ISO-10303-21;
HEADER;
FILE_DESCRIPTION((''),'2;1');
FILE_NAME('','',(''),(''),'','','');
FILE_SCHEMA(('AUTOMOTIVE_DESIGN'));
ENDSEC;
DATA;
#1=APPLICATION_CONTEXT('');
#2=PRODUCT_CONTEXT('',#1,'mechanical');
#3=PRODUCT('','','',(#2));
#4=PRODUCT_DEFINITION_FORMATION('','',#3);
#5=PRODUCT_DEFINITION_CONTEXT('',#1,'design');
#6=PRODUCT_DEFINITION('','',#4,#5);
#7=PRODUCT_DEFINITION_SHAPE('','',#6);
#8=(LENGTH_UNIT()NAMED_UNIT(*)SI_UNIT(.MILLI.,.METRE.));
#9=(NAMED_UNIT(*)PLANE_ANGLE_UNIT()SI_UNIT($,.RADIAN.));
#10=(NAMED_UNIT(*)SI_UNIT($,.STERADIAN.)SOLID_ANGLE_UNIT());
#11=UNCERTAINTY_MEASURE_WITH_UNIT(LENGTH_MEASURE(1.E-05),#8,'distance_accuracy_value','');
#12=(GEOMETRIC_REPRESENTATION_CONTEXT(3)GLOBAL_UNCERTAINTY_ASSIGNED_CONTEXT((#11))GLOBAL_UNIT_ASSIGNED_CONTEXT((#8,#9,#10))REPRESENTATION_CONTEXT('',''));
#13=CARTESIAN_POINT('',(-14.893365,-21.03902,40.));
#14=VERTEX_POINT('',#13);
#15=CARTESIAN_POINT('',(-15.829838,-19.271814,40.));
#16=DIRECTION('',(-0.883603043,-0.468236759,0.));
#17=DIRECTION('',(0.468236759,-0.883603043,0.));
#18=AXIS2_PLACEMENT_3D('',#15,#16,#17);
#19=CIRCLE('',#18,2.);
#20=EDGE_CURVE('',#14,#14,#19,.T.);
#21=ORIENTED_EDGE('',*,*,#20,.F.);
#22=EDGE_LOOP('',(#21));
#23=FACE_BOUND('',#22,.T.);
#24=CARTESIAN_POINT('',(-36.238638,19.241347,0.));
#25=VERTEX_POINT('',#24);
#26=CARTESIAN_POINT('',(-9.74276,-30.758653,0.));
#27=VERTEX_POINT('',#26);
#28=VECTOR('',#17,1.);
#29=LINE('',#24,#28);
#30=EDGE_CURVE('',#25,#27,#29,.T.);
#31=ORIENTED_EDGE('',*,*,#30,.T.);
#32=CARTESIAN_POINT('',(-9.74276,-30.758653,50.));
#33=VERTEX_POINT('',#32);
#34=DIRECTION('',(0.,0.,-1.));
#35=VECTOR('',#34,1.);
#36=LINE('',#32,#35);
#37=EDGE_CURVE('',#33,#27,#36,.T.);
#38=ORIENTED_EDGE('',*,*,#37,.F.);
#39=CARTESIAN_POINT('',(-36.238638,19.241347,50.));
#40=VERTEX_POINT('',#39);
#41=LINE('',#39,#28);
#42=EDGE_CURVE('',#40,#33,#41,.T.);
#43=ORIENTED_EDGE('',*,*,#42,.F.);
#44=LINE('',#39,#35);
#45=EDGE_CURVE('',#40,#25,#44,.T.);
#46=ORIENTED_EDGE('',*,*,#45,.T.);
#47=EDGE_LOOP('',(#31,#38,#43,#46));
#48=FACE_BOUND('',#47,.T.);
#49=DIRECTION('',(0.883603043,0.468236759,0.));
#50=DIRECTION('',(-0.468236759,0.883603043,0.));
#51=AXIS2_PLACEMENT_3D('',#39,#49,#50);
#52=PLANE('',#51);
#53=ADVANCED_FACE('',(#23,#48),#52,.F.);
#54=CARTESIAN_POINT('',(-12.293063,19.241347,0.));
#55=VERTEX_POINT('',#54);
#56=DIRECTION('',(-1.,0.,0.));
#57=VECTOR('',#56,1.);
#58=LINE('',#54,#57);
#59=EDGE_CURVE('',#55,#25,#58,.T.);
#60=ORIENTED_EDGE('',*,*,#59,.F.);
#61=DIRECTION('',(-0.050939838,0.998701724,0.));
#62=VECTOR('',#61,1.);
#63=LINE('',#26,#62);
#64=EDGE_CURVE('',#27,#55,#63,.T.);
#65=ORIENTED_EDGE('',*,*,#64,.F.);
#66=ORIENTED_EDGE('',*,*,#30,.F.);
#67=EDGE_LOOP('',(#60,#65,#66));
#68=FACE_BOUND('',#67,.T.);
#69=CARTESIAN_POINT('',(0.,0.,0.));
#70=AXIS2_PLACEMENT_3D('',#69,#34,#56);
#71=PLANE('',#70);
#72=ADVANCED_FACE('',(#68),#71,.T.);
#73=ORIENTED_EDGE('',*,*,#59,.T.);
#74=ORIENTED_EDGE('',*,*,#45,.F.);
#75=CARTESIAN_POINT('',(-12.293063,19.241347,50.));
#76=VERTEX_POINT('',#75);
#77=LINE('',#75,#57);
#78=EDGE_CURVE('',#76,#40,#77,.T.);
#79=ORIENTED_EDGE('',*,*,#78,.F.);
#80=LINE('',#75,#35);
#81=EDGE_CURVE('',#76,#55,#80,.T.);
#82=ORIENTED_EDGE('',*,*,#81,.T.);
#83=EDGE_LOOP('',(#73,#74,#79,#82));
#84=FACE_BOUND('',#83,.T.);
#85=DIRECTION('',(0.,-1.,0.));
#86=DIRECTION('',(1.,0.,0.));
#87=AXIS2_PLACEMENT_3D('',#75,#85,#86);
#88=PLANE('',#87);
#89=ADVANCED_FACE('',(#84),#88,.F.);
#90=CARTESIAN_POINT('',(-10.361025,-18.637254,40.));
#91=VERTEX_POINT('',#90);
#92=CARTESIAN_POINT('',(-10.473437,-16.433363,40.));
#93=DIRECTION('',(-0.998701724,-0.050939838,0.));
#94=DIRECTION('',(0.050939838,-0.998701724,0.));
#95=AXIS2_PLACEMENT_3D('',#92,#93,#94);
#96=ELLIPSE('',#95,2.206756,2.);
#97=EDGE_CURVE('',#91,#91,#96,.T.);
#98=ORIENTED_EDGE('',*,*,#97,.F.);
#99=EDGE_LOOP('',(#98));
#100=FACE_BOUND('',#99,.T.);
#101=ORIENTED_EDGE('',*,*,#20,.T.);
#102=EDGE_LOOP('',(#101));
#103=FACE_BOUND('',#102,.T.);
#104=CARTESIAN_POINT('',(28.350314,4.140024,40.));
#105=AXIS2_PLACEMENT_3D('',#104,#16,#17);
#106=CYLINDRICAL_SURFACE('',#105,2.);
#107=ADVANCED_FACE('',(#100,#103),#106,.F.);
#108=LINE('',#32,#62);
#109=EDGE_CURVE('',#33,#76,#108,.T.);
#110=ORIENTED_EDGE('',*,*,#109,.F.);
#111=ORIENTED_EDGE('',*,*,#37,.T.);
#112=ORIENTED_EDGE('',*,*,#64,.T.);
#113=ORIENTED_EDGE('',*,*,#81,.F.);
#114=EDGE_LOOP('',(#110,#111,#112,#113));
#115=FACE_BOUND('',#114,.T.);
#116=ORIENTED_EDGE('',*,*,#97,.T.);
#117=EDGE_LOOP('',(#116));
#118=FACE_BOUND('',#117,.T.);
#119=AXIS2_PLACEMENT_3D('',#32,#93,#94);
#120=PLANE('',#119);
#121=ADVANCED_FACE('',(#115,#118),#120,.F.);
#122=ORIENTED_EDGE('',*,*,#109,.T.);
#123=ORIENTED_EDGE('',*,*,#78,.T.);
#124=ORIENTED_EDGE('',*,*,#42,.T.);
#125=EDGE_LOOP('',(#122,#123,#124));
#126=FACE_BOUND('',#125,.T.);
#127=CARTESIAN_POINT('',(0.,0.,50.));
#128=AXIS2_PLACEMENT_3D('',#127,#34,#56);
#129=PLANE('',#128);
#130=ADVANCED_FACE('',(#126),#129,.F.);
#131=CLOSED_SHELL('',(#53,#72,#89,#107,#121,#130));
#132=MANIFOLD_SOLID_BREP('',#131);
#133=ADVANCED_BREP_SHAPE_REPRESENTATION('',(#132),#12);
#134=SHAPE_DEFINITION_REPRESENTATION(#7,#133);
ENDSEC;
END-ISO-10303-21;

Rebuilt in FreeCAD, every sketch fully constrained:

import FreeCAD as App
import Part
import Sketcher
from FreeCAD import Vector

doc = App.newDocument("Part")
body = doc.addObject("PartDesign::Body", "Body")

sketch1 = body.newObject("Sketcher::SketchObject", "Sketch")
sketch1.AttachmentSupport = (doc.getObject("XY_Plane"), [""])
sketch1.MapMode = "FlatFace"
sketch1.addGeometry([
    Part.LineSegment(Vector(-36, 19, 0), Vector(-10, -31, 0)),
    Part.LineSegment(Vector(-10, -31, 0), Vector(-12, 19, 0)),
    Part.LineSegment(Vector(-12, 19, 0), Vector(-36, 19, 0)),
], False)
sketch1.addConstraint([
    Sketcher.Constraint("Coincident", 0, 2, 1, 1),
    Sketcher.Constraint("Coincident", 1, 2, 2, 1),
    Sketcher.Constraint("Coincident", 2, 2, 0, 1),
    Sketcher.Constraint("Horizontal", 2),
    Sketcher.Constraint("DistanceY", 0, 2, 1, 2, 50.0),
    Sketcher.Constraint("Distance", 1, 50.064998),
    Sketcher.Constraint("DistanceX", 2, 2, 2, 1, 23.945575),
    Sketcher.Constraint("DistanceX", 0, 2, -1, 1, 9.74276),
    Sketcher.Constraint("DistanceY", 0, 2, -1, 1, 30.758653),
])
pad1 = body.newObject("PartDesign::Pad", "Pad")
pad1.Profile = sketch1
pad1.Length = 50

sketch2 = body.newObject("Sketcher::SketchObject", "Sketch001")
sketch2.Placement = App.Placement(Vector(-20.332647, -10.774626, 0), App.Rotation(Vector(0, 0, 1), Vector(-0.468236759, 0.883603043, 0), Vector(-0.883603043, -0.468236759, 0), "ZXY"))
sketch2.addGeometry(Part.Circle(Vector(40, -9.6, 0), Vector(0, 0, 1), 2), False)
sketch2.addConstraint([
    Sketcher.Constraint("Diameter", 0, 4.0),
    Sketcher.Constraint("DistanceX", -1, 1, 0, 3, 40.0),
    Sketcher.Constraint("DistanceY", 0, 3, -1, 1, 9.616521),
])
pocket1 = body.newObject("PartDesign::Pocket", "Pocket")
pocket1.Profile = sketch2
pocket1.Length = 50

doc.recompute()
